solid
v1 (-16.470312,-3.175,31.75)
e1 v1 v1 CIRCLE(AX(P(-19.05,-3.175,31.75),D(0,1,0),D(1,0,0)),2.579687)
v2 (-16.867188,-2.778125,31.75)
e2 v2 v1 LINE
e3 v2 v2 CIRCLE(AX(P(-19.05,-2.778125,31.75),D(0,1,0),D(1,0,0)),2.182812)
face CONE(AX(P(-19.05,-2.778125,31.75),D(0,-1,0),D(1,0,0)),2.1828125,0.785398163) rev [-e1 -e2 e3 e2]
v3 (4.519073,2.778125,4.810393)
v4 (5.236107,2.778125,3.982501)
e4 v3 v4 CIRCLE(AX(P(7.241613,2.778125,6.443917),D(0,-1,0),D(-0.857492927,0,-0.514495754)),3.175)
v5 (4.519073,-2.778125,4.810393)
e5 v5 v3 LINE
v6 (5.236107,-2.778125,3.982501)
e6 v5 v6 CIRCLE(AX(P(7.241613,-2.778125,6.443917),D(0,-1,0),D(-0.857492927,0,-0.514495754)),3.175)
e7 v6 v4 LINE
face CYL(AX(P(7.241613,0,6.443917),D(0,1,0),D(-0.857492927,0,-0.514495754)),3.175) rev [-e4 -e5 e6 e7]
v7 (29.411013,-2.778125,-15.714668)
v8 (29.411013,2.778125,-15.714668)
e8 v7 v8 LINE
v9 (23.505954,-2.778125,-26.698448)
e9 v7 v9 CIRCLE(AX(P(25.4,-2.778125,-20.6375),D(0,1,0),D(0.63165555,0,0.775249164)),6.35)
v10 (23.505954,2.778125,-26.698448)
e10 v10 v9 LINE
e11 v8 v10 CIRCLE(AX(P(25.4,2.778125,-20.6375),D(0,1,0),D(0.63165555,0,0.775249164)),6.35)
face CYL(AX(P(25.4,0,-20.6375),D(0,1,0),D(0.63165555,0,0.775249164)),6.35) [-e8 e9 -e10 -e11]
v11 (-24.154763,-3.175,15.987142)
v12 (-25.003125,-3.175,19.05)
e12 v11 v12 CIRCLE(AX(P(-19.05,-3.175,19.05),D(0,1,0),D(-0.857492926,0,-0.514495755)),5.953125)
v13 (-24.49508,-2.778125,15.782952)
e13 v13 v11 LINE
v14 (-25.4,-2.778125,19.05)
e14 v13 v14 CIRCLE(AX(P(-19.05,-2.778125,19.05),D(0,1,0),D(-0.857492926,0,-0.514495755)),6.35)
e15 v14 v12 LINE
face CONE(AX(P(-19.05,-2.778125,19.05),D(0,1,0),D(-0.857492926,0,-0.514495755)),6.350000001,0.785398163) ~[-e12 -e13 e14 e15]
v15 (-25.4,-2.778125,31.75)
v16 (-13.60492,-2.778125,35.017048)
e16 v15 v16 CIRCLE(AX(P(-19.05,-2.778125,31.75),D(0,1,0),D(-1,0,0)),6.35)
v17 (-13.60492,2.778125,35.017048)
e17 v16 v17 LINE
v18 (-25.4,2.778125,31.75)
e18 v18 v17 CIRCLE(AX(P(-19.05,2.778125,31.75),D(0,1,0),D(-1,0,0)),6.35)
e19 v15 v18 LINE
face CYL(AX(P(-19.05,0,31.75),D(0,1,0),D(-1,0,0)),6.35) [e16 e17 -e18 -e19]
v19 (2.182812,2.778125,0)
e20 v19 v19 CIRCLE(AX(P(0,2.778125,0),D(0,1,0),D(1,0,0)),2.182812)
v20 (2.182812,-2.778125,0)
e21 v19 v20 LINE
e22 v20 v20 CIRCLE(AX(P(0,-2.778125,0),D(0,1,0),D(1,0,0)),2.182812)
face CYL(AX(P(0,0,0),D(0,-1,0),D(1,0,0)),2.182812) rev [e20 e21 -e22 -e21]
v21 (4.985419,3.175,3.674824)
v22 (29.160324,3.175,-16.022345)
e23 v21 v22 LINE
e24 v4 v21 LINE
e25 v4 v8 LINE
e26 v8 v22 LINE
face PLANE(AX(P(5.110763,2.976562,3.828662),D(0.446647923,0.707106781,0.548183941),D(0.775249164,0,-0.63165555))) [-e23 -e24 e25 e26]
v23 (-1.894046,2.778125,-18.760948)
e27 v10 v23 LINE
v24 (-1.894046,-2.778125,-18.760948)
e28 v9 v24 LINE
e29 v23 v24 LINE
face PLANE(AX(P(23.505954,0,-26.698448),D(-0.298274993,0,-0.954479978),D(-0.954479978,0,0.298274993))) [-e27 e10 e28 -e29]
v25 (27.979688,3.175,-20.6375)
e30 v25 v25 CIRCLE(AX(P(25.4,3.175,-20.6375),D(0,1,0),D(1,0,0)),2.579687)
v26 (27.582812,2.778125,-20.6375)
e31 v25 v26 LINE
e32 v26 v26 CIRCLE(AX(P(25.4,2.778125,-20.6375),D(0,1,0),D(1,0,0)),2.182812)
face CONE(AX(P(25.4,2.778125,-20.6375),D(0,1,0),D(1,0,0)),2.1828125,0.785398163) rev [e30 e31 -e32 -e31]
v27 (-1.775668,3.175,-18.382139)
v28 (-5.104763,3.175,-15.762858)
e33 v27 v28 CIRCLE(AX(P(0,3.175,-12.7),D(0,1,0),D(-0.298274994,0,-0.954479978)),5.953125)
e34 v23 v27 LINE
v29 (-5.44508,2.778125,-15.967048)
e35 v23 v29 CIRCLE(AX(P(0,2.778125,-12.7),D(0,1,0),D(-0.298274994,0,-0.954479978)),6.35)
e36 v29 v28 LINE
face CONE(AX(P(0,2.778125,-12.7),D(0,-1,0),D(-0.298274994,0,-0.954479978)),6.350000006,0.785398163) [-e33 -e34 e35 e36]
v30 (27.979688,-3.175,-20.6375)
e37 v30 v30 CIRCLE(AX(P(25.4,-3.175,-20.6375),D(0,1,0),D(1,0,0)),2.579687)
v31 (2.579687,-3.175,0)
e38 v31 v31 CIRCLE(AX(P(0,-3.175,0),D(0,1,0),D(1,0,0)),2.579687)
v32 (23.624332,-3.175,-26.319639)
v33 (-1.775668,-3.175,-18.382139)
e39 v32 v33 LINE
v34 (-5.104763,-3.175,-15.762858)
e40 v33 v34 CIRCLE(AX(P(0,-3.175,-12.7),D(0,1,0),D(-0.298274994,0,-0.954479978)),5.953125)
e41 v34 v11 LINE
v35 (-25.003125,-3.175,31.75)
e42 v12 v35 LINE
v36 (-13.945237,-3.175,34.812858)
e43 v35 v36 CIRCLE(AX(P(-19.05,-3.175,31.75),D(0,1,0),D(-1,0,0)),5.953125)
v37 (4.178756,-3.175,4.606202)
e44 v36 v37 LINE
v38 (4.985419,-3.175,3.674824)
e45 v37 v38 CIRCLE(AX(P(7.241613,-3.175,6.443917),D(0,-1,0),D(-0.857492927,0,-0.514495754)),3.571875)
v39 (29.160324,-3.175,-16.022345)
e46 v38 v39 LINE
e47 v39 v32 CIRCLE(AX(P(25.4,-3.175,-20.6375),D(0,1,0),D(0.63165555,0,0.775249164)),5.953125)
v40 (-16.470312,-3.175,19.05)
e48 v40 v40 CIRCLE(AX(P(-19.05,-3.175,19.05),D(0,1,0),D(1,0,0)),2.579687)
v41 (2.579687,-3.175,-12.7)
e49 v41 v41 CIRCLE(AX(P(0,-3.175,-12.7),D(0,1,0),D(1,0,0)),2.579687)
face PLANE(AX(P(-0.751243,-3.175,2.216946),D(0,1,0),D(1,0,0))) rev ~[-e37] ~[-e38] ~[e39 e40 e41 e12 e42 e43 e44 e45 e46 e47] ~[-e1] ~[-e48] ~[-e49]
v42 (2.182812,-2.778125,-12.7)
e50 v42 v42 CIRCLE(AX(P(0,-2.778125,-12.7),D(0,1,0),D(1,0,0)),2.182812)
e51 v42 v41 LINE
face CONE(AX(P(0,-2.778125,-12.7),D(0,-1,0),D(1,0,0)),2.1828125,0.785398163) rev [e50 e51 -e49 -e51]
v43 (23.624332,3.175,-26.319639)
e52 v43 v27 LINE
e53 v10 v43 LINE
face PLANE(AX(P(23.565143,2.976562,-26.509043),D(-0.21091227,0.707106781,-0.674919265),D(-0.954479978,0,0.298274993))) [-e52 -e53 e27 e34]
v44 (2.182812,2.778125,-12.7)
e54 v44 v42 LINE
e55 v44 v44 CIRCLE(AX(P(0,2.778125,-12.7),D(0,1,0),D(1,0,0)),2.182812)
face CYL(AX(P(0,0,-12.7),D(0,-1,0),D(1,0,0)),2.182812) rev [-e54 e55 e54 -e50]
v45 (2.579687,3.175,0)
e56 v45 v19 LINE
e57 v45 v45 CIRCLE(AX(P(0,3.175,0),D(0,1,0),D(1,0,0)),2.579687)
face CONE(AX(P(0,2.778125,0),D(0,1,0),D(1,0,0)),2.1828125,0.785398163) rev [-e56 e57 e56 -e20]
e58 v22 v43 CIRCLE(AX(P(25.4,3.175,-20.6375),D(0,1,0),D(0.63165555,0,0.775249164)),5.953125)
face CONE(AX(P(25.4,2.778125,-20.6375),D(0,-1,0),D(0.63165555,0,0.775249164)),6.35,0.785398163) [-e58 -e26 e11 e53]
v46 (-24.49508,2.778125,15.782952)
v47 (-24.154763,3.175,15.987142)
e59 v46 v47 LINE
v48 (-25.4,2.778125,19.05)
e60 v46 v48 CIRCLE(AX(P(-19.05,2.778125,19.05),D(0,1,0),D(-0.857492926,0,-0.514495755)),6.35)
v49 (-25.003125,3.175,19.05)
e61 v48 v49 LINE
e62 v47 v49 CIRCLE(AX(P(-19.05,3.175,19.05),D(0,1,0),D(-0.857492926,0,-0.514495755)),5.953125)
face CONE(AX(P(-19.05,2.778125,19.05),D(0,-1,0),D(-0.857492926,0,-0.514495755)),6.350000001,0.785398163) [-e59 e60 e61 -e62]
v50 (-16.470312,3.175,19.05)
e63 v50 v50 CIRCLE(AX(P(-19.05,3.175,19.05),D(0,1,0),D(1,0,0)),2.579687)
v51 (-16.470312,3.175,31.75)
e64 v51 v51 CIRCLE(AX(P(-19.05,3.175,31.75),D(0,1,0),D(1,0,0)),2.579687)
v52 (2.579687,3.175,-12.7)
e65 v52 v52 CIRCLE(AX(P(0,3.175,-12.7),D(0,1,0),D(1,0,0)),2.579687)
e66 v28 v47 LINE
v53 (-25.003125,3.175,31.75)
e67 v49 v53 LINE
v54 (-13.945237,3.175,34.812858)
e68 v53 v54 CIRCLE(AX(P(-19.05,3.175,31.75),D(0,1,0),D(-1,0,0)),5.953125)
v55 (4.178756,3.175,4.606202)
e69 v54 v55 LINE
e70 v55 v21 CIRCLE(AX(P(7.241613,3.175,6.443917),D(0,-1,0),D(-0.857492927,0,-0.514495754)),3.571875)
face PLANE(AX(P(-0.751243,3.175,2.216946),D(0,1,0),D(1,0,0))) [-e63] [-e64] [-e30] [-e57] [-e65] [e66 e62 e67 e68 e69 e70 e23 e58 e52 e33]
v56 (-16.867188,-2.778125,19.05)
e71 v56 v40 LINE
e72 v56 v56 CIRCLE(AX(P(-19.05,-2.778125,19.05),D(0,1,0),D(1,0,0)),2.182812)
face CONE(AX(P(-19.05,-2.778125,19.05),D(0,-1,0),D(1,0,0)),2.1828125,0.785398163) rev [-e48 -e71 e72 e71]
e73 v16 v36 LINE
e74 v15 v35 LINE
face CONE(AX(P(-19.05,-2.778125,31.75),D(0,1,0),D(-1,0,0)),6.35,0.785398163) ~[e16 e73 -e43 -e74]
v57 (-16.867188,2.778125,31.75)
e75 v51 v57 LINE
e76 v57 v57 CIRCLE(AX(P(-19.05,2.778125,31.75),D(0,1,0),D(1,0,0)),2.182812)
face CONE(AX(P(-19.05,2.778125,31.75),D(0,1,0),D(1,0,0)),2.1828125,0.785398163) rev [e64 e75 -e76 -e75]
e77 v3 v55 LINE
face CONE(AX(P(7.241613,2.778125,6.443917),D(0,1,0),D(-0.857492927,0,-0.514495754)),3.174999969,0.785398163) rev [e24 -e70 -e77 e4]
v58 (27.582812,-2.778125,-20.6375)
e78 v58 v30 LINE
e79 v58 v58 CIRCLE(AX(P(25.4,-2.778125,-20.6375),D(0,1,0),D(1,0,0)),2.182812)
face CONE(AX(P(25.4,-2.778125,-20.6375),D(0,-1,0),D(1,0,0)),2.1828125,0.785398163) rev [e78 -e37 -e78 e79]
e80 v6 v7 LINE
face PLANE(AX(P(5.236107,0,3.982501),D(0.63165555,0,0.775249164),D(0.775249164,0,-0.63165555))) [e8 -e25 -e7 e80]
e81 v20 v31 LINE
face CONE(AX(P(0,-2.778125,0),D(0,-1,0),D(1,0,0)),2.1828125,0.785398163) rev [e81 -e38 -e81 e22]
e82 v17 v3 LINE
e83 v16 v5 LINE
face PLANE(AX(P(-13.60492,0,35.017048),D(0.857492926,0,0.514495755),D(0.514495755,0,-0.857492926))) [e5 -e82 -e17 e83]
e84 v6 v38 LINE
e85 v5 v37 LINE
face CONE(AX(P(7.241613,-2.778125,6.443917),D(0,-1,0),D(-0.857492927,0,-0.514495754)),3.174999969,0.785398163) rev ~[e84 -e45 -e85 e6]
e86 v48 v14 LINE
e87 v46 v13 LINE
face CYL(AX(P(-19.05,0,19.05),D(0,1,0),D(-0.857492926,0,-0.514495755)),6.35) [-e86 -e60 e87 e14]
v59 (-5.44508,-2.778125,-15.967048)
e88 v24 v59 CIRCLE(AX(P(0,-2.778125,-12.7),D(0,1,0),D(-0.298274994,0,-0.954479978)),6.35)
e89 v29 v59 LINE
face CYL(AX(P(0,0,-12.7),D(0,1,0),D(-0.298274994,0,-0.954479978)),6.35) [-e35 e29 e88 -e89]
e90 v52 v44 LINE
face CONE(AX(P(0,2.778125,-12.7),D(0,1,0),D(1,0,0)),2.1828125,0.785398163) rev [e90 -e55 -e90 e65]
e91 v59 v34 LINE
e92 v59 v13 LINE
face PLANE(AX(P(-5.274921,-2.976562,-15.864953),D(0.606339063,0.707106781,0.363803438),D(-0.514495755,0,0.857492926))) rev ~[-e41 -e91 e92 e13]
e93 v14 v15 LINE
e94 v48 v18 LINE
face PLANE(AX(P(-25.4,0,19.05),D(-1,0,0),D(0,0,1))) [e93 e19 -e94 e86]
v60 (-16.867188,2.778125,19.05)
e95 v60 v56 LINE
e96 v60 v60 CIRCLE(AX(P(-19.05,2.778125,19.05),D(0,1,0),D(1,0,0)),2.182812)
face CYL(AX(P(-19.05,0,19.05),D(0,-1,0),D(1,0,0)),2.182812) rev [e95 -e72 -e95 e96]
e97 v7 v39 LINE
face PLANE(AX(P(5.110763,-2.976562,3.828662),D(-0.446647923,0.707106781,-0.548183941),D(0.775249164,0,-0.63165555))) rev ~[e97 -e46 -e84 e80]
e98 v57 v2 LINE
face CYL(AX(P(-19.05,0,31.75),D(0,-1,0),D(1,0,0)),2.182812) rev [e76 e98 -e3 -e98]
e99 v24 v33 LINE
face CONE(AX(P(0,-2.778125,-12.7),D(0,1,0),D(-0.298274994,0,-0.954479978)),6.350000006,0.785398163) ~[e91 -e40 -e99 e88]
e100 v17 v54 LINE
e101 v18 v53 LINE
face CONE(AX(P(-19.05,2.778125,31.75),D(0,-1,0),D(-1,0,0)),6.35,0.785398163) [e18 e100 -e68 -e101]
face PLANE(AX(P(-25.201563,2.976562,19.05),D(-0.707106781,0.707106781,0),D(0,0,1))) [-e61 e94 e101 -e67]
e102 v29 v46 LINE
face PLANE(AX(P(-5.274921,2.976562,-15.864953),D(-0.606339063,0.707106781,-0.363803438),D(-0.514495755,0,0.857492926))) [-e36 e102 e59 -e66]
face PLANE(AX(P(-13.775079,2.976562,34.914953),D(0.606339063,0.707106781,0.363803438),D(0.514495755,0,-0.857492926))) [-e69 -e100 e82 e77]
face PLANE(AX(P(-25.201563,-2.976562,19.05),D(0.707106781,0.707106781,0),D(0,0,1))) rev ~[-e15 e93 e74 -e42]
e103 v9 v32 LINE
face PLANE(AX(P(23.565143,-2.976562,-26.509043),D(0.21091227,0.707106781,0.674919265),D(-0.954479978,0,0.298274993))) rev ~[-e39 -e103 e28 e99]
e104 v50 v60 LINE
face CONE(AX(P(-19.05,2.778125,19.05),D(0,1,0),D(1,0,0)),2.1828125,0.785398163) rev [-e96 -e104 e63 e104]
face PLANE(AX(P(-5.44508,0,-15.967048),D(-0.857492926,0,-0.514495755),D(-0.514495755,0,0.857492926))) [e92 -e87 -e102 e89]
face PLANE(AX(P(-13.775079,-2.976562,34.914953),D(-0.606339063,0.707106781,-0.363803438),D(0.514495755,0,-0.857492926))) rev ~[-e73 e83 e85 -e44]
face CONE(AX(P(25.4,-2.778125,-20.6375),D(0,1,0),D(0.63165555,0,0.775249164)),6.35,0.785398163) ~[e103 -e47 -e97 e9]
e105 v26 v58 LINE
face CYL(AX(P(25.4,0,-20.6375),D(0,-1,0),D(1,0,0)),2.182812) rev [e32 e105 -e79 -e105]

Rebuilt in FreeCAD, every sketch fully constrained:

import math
import FreeCAD as App
import Part
import Sketcher

V = App.Vector
Q = App.Units.Quantity


def edges_at(feature, points):
    """Names of the edges that pass closest to the given points."""
    edges = feature.Shape.Edges
    near = lambda p: min(range(len(edges)), key=lambda i: edges[i].distToShape(Part.Vertex(*p))[0])
    return sorted({f"Edge{near(p) + 1}" for p in points})

doc = App.newDocument("Part")
body = doc.addObject("PartDesign::Body", "Body")

# Sketch on XZ plane
sketch1 = doc.addObject("Sketcher::SketchObject", "Sketch")
body.addObject(sketch1)
sketch1.AttachmentSupport = (doc.XZ_Plane, [""])
sketch1.MapMode = "FlatFace"
sketch1.addGeometry([
    Part.LineSegment(V(-25.4, 19.1, 0), V(-25.4, 31.8, 0)),  # 0
    Part.ArcOfCircle(Part.Circle(V(-19.1, 31.8, 0), V(0, 0, 1), 6.3), math.radians(31), math.radians(180)),  # 1
    Part.LineSegment(V(-13.6, 35, 0), V(4.5, 4.8, 0)),  # 2
    Part.ArcOfCircle(Part.Circle(V(7.2, 6.4, 0), V(0, 0, 1), 3.2), math.radians(-149.04), math.radians(-129.17)),  # 3
    Part.LineSegment(V(5.2, 4, 0), V(29.4, -15.7, 0)),  # 4
    Part.ArcOfCircle(Part.Circle(V(25.4, -20.6, 0), V(0, 0, 1), 6.3), math.radians(-107), math.radians(51)),  # 5
    Part.LineSegment(V(23.5, -26.7, 0), V(-1.9, -18.8, 0)),  # 6
    Part.ArcOfCircle(Part.Circle(V(0, -12.7, 0), V(0, 0, 1), 6.4), math.radians(-149), math.radians(-107)),  # 7
    Part.LineSegment(V(-5.4, -16, 0), V(-24.5, 15.8, 0)),  # 8
    Part.ArcOfCircle(Part.Circle(V(-19, 19.1, 0), V(0, 0, 1), 6.4), math.radians(-180), math.radians(-149)),  # 9
    Part.Circle(V(-19.1, 31.8, 0), V(0, 0, 1), 2.2),  # 10
    Part.Circle(V(-19.1, 19.1, 0), V(0, 0, 1), 2.2),  # 11
    Part.Circle(V(0, 0, 0), V(0, 0, 1), 2.2),  # 12
    Part.Circle(V(0, -12.7, 0), V(0, 0, 1), 2.2),  # 13
    Part.Circle(V(25.4, -20.6, 0), V(0, 0, 1), 2.2),  # 14
], False)
sketch1.addConstraint([
    Sketcher.Constraint("Tangent", 0, 2, 1, 2),
    Sketcher.Constraint("Tangent", 1, 1, 2, 1),
    Sketcher.Constraint("Tangent", 2, 2, 3, 1),
    Sketcher.Constraint("Tangent", 3, 2, 4, 1),
    Sketcher.Constraint("Tangent", 4, 2, 5, 2),
    Sketcher.Constraint("Tangent", 5, 1, 6, 1),
    Sketcher.Constraint("Tangent", 6, 2, 7, 2),
    Sketcher.Constraint("Tangent", 7, 1, 8, 1),
    Sketcher.Constraint("Tangent", 8, 2, 9, 2),
    Sketcher.Constraint("Tangent", 9, 1, 0, 1),
    Sketcher.Constraint("Vertical", 0),
    Sketcher.Constraint("Coincident", 12, 3, -1, 1),
    Sketcher.Constraint("Coincident", 10, 3, 1, 3),
    Sketcher.Constraint("Coincident", 11, 3, 9, 3),
    Sketcher.Constraint("Coincident", 13, 3, 7, 3),
    Sketcher.Constraint("Coincident", 14, 3, 5, 3),
    Sketcher.Constraint("Equal", 1, 5),
    Sketcher.Constraint("Equal", 5, 7),
    Sketcher.Constraint("Equal", 7, 9),
    Sketcher.Constraint("Equal", 10, 11),
    Sketcher.Constraint("Equal", 11, 12),
    Sketcher.Constraint("Equal", 12, 13),
    Sketcher.Constraint("Equal", 13, 14),
    Sketcher.Constraint("PointOnObject", 7, 3, -2),
    Sketcher.Constraint("Parallel", 2, 8),
    Sketcher.Constraint("Radius", 1, Q("0.25 in")),
    Sketcher.Constraint("Diameter", 10, Q("0.171875 in")),
    Sketcher.Constraint("DistanceY", 0, 1, 0, 2, Q("0.5 in")),
    Sketcher.Constraint("DistanceX", -1, 1, 5, 3, Q("1 in")),
    Sketcher.Constraint("DistanceX", 0, 2, -1, 1, Q("1 in")),
    Sketcher.Constraint("Radius", 3, Q("0.125 in")),
    Sketcher.Constraint("DistanceY", 7, 3, -1, 1, Q("0.5 in")),
    Sketcher.Constraint("DistanceY", -1, 1, 1, 3, Q("1.25 in")),
    Sketcher.Constraint("DistanceY", 5, 3, -1, 1, Q("0.8125 in")),
    Sketcher.Constraint("Distance", 4, 31.183401),
])
pad1 = doc.addObject("PartDesign::Pad", "Pad")
body.addObject(pad1)
pad1.Profile = sketch1
pad1.Length = Q("0.25 in")
pad1.Midplane = True
doc.recompute()

chamfer = doc.addObject("PartDesign::Chamfer", "Chamfer")
body.addObject(chamfer)
chamfer.Base = (pad1, edges_at(pad1, [
    (-4.543, -3.175, 19.914),
    (-20.745, -3.175, 37.87),
    (-25.4, -3.175, 25.4),
    (-25.17, -3.175, 17.355),
    (-14.97, -3.175, -0.092),
    (-3.926, -3.175, -17.691),
    (10.806, -3.175, -22.73),
    (30.993, 3.175, -23.644),
    (30.993, -3.175, -23.644),
    (17.324, -3.175, -5.866),
    (4.842, -3.175, 4.365),
    (10.806, 3.175, -22.73),
    (-3.926, 3.175, -17.691),
    (-14.97, 3.175, -0.092),
    (-2.183, -3.175, 0),
    (-2.183, 3.175, 0),
    (-25.17, 3.175, 17.355),
    (-2.183, -3.175, -12.7),
    (-2.183, 3.175, -12.7),
    (-25.4, 3.175, 25.4),
    (-21.233, -3.175, 19.05),
    (-21.233, 3.175, 19.05),
    (-20.745, 3.175, 37.87),
    (-21.233, -3.175, 31.75),
    (-21.233, 3.175, 31.75),
    (-4.543, 3.175, 19.914),
    (23.217, -3.175, -20.637),
    (23.217, 3.175, -20.637),
    (4.842, 3.175, 4.365),
    (17.324, 3.175, -5.866),
]))
chamfer.Size = Q("0.015625 in")

doc.recompute()
